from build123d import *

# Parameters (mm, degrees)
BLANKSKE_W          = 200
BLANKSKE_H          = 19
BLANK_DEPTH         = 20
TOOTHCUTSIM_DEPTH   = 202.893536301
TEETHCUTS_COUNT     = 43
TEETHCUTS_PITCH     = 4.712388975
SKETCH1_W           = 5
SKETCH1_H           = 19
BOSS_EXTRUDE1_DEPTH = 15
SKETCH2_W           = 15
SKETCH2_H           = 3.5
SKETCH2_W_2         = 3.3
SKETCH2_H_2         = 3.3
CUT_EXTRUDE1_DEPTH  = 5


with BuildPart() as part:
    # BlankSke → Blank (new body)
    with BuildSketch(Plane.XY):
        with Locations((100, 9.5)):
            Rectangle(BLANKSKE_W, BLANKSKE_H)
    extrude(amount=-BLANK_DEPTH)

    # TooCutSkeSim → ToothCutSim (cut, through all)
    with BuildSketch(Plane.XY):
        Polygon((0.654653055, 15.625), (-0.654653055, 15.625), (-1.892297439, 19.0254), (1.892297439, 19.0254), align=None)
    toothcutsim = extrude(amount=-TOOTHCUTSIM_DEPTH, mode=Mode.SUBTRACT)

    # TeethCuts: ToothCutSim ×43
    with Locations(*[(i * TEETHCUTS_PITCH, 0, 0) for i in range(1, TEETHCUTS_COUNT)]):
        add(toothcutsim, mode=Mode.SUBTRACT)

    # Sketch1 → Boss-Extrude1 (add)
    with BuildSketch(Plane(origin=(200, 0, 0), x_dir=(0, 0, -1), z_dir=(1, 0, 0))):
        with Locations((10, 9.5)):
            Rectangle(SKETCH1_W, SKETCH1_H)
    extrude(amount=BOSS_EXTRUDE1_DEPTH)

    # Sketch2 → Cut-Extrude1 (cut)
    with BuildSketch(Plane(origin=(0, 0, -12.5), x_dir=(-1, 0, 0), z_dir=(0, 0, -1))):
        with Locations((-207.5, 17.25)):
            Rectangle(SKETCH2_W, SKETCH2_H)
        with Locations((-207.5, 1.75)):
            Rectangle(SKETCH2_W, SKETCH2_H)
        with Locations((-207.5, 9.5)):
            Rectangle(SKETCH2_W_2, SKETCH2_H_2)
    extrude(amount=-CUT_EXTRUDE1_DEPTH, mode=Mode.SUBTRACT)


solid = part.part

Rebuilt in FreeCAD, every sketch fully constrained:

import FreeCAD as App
import Part
import Sketcher
Q = App.Units.Quantity

doc = App.newDocument("Part")
body = doc.addObject("PartDesign::Body", "Body")

sketch1 = body.newObject("Sketcher::SketchObject", "Sketch")
sketch1.AttachmentSupport = (doc.getObject("XY_Plane"), [""])
sketch1.MapMode = "FlatFace"
sketch1.addGeometry([
    Part.LineSegment(App.Vector(0, 19, 0), App.Vector(0, 0, 0)),
    Part.LineSegment(App.Vector(0, 0, 0), App.Vector(200, 0, 0)),
    Part.LineSegment(App.Vector(200, 0, 0), App.Vector(200, 19, 0)),
    Part.LineSegment(App.Vector(200, 19, 0), App.Vector(0, 19, 0)),
], False)
sketch1.addConstraint([
    Sketcher.Constraint("Coincident", 0, 2, 1, 1),
    Sketcher.Constraint("Coincident", 1, 2, 2, 1),
    Sketcher.Constraint("Coincident", 2, 2, 3, 1),
    Sketcher.Constraint("Coincident", 3, 2, 0, 1),
    Sketcher.Constraint("Vertical", 0),
    Sketcher.Constraint("Horizontal", 1),
    Sketcher.Constraint("Vertical", 2),
    Sketcher.Constraint("Horizontal", 3),
    Sketcher.Constraint("Coincident", 0, 2, -1, 1),
    Sketcher.Constraint("DistanceX", 1, 1, 1, 2, Q("200 mm")),
    Sketcher.Constraint("DistanceY", 0, 2, 0, 1, Q("19 mm")),
])
pad1 = body.newObject("PartDesign::Pad", "Pad")
pad1.Profile = sketch1
pad1.Length = 20
pad1.Reversed = True

sketch2 = body.newObject("Sketcher::SketchObject", "Sketch001")
sketch2.AttachmentSupport = (doc.getObject("XY_Plane"), [""])
sketch2.MapMode = "FlatFace"
sketch2.addGeometry([
    Part.LineSegment(App.Vector(-0.654653, 15.625, 0), App.Vector(0.654653, 15.625, 0)),
    Part.LineSegment(App.Vector(0.654653, 15.625, 0), App.Vector(1.892297, 19.0254, 0)),
    Part.LineSegment(App.Vector(1.892297, 19.0254, 0), App.Vector(-1.892297, 19.0254, 0)),
    Part.LineSegment(App.Vector(-1.892297, 19.0254, 0), App.Vector(-0.654653, 15.625, 0)),
], False)
sketch2.addConstraint([
    Sketcher.Constraint("Coincident", 0, 2, 1, 1),
    Sketcher.Constraint("Coincident", 1, 2, 2, 1),
    Sketcher.Constraint("Coincident", 2, 2, 3, 1),
    Sketcher.Constraint("Coincident", 3, 2, 0, 1),
    Sketcher.Constraint("Horizontal", 0),
    Sketcher.Constraint("Horizontal", 2),
    Sketcher.Constraint("Equal", 1, 3),
    Sketcher.Constraint("Angle", 1, Q("70 deg")),
    Sketcher.Constraint("DistanceY", -1, 1, 0, 2, Q("15.625 mm")),
    Sketcher.Constraint("DistanceY", -1, 1, 1, 2, Q("19.0254 mm")),
    Sketcher.Constraint("DistanceX", 0, 1, 0, 2, Q("1.309306 mm")),
    Sketcher.Constraint("DistanceX", -1, 1, 0, 2, Q("0.654653 mm")),
])
pocket1 = body.newObject("PartDesign::Pocket", "Pocket")
pocket1.Profile = sketch2
pocket1.Type = "ThroughAll"
doc.recompute()

linearpattern = body.newObject("PartDesign::LinearPattern", "LinearPattern")
linearpattern.Originals = [pocket1]
linearpattern.Direction = (doc.getObject("X_Axis"), [""])
linearpattern.Mode = "offset"
linearpattern.Offset = 4.712389
linearpattern.Occurrences = 43
body.Tip = linearpattern

sketch3 = body.newObject("Sketcher::SketchObject", "Sketch002")
sketch3.AttachmentSupport = (doc.getObject("YZ_Plane"), [""])
sketch3.MapMode = "FlatFace"
sketch3.AttachmentOffset = App.Placement(App.Vector(0, 0, 200), App.Rotation())
sketch3.addGeometry([
    Part.LineSegment(App.Vector(19, -7.5, 0), App.Vector(0, -7.5, 0)),
    Part.LineSegment(App.Vector(0, -7.5, 0), App.Vector(0, -12.5, 0)),
    Part.LineSegment(App.Vector(0, -12.5, 0), App.Vector(19, -12.5, 0)),
    Part.LineSegment(App.Vector(19, -12.5, 0), App.Vector(19, -7.5, 0)),
], False)
sketch3.addConstraint([
    Sketcher.Constraint("Coincident", 0, 2, 1, 1),
    Sketcher.Constraint("Coincident", 1, 2, 2, 1),
    Sketcher.Constraint("Coincident", 2, 2, 3, 1),
    Sketcher.Constraint("Coincident", 3, 2, 0, 1),
    Sketcher.Constraint("Horizontal", 0),
    Sketcher.Constraint("Vertical", 1),
    Sketcher.Constraint("Horizontal", 2),
    Sketcher.Constraint("Vertical", 3),
    Sketcher.Constraint("PointOnObject", 0, 2, -2),
    Sketcher.Constraint("DistanceX", 0, 2, 0, 1, Q("19 mm")),
    Sketcher.Constraint("DistanceY", 1, 2, 1, 1, Q("5 mm")),
    Sketcher.Constraint("DistanceY", 0, 2, -1, 1, Q("7.5 mm")),
])
pad2 = body.newObject("PartDesign::Pad", "Pad001")
pad2.Profile = sketch3
pad2.Length = 15

sketch4 = body.newObject("Sketcher::SketchObject", "Sketch003")
sketch4.AttachmentSupport = (doc.getObject("XY_Plane"), [""])
sketch4.MapMode = "FlatFace"
sketch4.AttachmentOffset = App.Placement(App.Vector(0, 0, -12.5), App.Rotation())
sketch4.addGeometry([
    Part.LineSegment(App.Vector(215, 19, 0), App.Vector(215, 15.5, 0)),
    Part.LineSegment(App.Vector(215, 15.5, 0), App.Vector(200, 15.5, 0)),
    Part.LineSegment(App.Vector(200, 15.5, 0), App.Vector(200, 19, 0)),
    Part.LineSegment(App.Vector(200, 19, 0), App.Vector(215, 19, 0)),
    Part.LineSegment(App.Vector(215, 3.5, 0), App.Vector(215, 0, 0)),
    Part.LineSegment(App.Vector(215, 0, 0), App.Vector(200, 0, 0)),
    Part.LineSegment(App.Vector(200, 0, 0), App.Vector(200, 3.5, 0)),
    Part.LineSegment(App.Vector(200, 3.5, 0), App.Vector(215, 3.5, 0)),
    Part.LineSegment(App.Vector(209.15, 11.15, 0), App.Vector(209.15, 7.85, 0)),
    Part.LineSegment(App.Vector(209.15, 7.85, 0), App.Vector(205.85, 7.85, 0)),
    Part.LineSegment(App.Vector(205.85, 7.85, 0), App.Vector(205.85, 11.15, 0)),
    Part.LineSegment(App.Vector(205.85, 11.15, 0), App.Vector(209.15, 11.15, 0)),
], False)
sketch4.addConstraint([
    Sketcher.Constraint("Coincident", 0, 2, 1, 1),
    Sketcher.Constraint("Coincident", 1, 2, 2, 1),
    Sketcher.Constraint("Coincident", 2, 2, 3, 1),
    Sketcher.Constraint("Coincident", 3, 2, 0, 1),
    Sketcher.Constraint("Coincident", 4, 2, 5, 1),
    Sketcher.Constraint("Coincident", 5, 2, 6, 1),
    Sketcher.Constraint("Coincident", 6, 2, 7, 1),
    Sketcher.Constraint("Coincident", 7, 2, 4, 1),
    Sketcher.Constraint("Coincident", 8, 2, 9, 1),
    Sketcher.Constraint("Coincident", 9, 2, 10, 1),
    Sketcher.Constraint("Coincident", 10, 2, 11, 1),
    Sketcher.Constraint("Coincident", 11, 2, 8, 1),
    Sketcher.Constraint("Vertical", 0),
    Sketcher.Constraint("Horizontal", 1),
    Sketcher.Constraint("Vertical", 2),
    Sketcher.Constraint("Horizontal", 3),
    Sketcher.Constraint("Vertical", 4),
    Sketcher.Constraint("Horizontal", 5),
    Sketcher.Constraint("Vertical", 6),
    Sketcher.Constraint("Horizontal", 7),
    Sketcher.Constraint("Vertical", 8),
    Sketcher.Constraint("Horizontal", 9),
    Sketcher.Constraint("Vertical", 10),
    Sketcher.Constraint("Horizontal", 11),
    Sketcher.Constraint("PointOnObject", 4, 2, -1),
    Sketcher.Constraint("Vertical", 3, 2, 4, 2),
    Sketcher.Constraint("Vertical", 2, 2, 5, 2),
    Sketcher.Constraint("Equal", 2, 4),
    Sketcher.Constraint("Equal", 11, 8),
    Sketcher.Constraint("DistanceX", 1, 2, 1, 1, Q("15 mm")),
    Sketcher.Constraint("DistanceX", 9, 2, 9, 1, Q("3.3 mm")),
    Sketcher.Constraint("DistanceY", 0, 2, 0, 1, Q("3.5 mm")),
    Sketcher.Constraint("DistanceX", -1, 1, 0, 2, Q("215 mm")),
    Sketcher.Constraint("DistanceY", -1, 1, 2, 2, Q("19 mm")),
    Sketcher.Constraint("DistanceX", -1, 1, 8, 2, Q("209.15 mm")),
    Sketcher.Constraint("DistanceY", -1, 1, 8, 2, Q("7.85 mm")),
])
pocket2 = body.newObject("PartDesign::Pocket", "Pocket001")
pocket2.Profile = sketch4
pocket2.Length = 5
pocket2.Reversed = True

doc.recompute()
